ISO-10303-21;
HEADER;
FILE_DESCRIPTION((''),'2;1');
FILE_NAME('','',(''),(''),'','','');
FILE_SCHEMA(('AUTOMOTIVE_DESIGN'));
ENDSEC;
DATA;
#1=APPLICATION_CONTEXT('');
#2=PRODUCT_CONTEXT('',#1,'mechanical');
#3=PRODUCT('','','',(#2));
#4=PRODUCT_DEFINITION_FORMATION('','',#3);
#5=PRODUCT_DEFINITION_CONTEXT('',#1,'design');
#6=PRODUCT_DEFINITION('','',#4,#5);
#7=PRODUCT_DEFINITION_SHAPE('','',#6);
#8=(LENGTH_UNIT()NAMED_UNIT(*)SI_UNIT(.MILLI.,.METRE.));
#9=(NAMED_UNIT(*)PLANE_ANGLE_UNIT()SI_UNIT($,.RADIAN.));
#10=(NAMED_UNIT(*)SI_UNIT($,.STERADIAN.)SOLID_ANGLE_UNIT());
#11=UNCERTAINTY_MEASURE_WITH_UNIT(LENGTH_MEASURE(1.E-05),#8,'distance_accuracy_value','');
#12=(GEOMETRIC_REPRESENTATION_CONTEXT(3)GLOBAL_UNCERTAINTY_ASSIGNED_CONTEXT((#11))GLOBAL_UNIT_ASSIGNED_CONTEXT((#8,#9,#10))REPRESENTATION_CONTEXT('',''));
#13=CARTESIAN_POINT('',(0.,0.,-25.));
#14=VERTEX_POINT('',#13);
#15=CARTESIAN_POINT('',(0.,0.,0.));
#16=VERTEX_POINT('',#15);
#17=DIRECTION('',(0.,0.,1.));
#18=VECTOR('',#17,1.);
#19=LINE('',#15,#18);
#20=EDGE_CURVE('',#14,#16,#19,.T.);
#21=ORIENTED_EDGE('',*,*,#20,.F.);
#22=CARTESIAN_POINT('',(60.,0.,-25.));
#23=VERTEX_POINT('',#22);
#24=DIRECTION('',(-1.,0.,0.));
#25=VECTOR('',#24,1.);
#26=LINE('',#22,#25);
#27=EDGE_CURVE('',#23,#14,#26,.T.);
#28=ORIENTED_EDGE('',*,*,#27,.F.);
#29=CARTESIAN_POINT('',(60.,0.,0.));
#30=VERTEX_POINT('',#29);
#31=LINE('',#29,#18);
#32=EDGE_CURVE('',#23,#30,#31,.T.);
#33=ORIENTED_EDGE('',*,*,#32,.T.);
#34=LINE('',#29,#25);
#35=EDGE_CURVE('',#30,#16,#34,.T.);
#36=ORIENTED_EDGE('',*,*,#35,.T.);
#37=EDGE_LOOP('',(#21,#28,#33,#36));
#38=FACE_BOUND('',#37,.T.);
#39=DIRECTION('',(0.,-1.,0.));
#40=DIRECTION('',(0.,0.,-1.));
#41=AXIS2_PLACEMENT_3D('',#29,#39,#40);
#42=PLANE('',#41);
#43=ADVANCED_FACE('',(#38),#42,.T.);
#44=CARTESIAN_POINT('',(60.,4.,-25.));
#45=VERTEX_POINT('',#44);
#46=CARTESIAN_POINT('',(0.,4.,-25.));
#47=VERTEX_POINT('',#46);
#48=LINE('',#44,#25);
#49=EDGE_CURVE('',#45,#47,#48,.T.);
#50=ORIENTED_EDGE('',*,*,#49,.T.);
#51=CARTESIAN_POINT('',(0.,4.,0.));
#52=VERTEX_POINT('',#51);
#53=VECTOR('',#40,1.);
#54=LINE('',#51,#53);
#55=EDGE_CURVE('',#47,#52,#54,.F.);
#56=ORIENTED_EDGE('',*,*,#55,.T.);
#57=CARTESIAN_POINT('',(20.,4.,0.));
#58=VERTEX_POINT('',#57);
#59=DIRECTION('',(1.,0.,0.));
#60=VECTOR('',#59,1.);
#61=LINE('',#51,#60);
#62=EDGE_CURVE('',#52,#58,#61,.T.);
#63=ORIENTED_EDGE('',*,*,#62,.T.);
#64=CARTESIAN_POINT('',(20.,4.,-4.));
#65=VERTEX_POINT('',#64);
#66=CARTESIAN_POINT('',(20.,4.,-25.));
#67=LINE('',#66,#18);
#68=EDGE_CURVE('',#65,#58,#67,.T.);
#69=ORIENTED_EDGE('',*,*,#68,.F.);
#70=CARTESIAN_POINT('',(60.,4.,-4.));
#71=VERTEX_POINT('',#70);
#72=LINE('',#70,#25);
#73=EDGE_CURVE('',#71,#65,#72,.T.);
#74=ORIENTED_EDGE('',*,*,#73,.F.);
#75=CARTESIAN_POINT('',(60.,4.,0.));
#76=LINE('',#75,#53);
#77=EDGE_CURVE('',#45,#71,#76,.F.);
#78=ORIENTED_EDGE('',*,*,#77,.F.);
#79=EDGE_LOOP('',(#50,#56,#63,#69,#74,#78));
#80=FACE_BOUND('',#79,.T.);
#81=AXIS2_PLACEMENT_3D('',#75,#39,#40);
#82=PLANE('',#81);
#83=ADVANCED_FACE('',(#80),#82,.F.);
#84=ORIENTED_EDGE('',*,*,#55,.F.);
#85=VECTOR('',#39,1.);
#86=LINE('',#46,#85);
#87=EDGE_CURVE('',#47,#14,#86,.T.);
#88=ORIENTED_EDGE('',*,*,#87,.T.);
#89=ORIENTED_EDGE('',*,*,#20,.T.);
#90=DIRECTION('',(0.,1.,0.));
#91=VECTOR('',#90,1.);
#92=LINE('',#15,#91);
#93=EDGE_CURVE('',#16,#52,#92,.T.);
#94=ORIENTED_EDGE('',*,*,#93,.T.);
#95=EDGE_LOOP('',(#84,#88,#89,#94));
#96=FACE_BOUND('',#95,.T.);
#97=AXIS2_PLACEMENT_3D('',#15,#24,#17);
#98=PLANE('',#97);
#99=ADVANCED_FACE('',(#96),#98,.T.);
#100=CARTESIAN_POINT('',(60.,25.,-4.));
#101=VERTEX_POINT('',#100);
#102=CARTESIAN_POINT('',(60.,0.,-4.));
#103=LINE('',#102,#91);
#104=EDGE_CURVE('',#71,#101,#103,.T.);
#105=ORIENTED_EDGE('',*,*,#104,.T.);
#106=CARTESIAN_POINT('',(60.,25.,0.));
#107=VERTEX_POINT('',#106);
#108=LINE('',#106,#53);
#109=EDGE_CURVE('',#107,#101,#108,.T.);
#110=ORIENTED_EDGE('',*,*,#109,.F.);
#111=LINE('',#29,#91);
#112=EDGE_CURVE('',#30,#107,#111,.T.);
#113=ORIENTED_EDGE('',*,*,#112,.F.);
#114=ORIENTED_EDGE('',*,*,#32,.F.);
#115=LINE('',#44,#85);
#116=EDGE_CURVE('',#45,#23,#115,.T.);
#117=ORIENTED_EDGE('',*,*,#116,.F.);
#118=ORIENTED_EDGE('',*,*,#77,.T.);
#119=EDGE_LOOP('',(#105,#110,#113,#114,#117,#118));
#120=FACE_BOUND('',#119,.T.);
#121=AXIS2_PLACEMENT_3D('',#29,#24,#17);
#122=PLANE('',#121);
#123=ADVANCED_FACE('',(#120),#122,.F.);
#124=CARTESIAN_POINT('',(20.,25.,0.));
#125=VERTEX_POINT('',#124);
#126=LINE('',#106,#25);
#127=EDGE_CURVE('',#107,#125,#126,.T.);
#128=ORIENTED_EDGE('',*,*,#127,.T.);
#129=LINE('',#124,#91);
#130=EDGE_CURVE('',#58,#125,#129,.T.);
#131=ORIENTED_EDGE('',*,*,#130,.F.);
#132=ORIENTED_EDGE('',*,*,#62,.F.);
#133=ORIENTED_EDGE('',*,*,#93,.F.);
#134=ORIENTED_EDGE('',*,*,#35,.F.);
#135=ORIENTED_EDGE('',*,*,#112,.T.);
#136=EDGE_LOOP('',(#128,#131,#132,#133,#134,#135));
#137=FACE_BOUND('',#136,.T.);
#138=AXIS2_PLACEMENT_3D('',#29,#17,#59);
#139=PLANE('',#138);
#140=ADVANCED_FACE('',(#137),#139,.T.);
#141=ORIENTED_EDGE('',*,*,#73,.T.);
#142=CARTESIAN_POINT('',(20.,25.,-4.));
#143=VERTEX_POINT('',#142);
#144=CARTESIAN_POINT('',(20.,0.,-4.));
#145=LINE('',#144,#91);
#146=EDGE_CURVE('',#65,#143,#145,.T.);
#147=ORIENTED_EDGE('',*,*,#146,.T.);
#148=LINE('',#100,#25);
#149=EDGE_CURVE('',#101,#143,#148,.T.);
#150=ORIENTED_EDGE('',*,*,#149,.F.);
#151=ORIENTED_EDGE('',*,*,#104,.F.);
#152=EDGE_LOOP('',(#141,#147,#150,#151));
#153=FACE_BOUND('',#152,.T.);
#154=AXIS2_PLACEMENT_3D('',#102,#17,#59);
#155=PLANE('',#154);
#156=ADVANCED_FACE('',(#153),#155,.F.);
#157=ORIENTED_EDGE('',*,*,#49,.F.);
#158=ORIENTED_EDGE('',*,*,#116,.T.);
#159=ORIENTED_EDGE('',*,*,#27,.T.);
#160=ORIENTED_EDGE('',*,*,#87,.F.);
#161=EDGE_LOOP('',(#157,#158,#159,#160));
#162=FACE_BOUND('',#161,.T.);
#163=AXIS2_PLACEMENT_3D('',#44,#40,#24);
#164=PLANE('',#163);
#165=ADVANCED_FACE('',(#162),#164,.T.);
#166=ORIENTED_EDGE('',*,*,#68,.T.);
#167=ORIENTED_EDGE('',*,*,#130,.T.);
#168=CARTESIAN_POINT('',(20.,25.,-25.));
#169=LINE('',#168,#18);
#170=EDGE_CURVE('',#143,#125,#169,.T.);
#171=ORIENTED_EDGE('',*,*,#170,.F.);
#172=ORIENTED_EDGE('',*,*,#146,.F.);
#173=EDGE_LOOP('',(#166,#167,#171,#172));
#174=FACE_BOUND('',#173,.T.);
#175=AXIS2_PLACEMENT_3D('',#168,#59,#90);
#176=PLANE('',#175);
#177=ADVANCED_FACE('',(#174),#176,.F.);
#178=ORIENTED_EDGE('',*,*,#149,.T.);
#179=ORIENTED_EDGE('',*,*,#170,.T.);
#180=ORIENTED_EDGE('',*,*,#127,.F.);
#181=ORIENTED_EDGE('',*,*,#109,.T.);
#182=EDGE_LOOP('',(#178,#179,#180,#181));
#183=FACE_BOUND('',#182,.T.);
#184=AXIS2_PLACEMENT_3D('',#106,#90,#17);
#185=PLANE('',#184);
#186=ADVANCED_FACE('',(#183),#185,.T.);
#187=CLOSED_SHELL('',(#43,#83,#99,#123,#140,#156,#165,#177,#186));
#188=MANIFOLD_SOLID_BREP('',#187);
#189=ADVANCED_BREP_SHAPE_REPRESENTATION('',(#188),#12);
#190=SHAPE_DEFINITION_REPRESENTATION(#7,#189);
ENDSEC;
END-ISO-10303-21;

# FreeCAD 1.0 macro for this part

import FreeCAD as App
import Part
import Sketcher

V = App.Vector

doc = App.newDocument("Part")
params = doc.addObject("Spreadsheet::Sheet", "Params")
for row, (alias, value) in enumerate([
    ("sketch1_width", "25 mm"),
    ("sketch1_width2", "4 mm"),
    ("pad1_length", "60 mm"),
    ("sketch2_width", "20 mm"),
    ("sketch2_height", "21 mm"),
], start=1):
    params.set(f"A{row}", alias)
    params.set(f"B{row}", "=" + value)
    params.setAlias(f"B{row}", alias)

body = doc.addObject("PartDesign::Body", "Body")

# Sketch on YZ plane
sketch1 = doc.addObject("Sketcher::SketchObject", "Sketch")
body.addObject(sketch1)
sketch1.AttachmentSupport = (doc.YZ_Plane, [""])
sketch1.MapMode = "FlatFace"
sketch1.addGeometry([
    Part.LineSegment(V(25, 0, 0), V(0, 0, 0)),  # 0
    Part.LineSegment(V(0, 0, 0), V(0, -25, 0)),  # 1
    Part.LineSegment(V(0, -25, 0), V(4, -25, 0)),  # 2
    Part.LineSegment(V(4, -25, 0), V(4, -4, 0)),  # 3
    Part.LineSegment(V(4, -4, 0), V(25, -4, 0)),  # 4
    Part.LineSegment(V(25, -4, 0), V(25, 0, 0)),  # 5
], False)
sketch1.addConstraint([
    Sketcher.Constraint("Coincident", 0, 2, 1, 1),
    Sketcher.Constraint("Coincident", 1, 2, 2, 1),
    Sketcher.Constraint("Coincident", 2, 2, 3, 1),
    Sketcher.Constraint("Coincident", 3, 2, 4, 1),
    Sketcher.Constraint("Coincident", 4, 2, 5, 1),
    Sketcher.Constraint("Coincident", 5, 2, 0, 1),
    Sketcher.Constraint("Horizontal", 0),
    Sketcher.Constraint("Vertical", 1),
    Sketcher.Constraint("Horizontal", 2),
    Sketcher.Constraint("Vertical", 3),
    Sketcher.Constraint("Horizontal", 4),
    Sketcher.Constraint("Vertical", 5),
    Sketcher.Constraint("Coincident", 0, 2, -1, 1),
    Sketcher.Constraint("Equal", 0, 1),
    Sketcher.Constraint("Equal", 4, 3),
    Sketcher.Constraint("DistanceX", 0, 2, 0, 1, 25.0),
    Sketcher.Constraint("DistanceX", 2, 1, 2, 2, 4.0),
])
sketch1.setExpression("Constraints[15]", "Params.sketch1_width")
sketch1.setExpression("Constraints[16]", "Params.sketch1_width2")
pad1 = doc.addObject("PartDesign::Pad", "Pad")
body.addObject(pad1)
pad1.Profile = sketch1
pad1.setExpression("Length", "Params.pad1_length")

# Sketch on XY plane
sketch2 = doc.addObject("Sketcher::SketchObject", "Sketch001")
body.addObject(sketch2)
sketch2.AttachmentSupport = (doc.XY_Plane, [""])
sketch2.MapMode = "FlatFace"
sketch2.addGeometry([
    Part.LineSegment(V(0, 25, 0), V(0, 4, 0)),
    Part.LineSegment(V(0, 4, 0), V(20, 4, 0)),
    Part.LineSegment(V(20, 4, 0), V(20, 25, 0)),
    Part.LineSegment(V(20, 25, 0), V(0, 25, 0)),
], False)
sketch2.addConstraint([
    Sketcher.Constraint("Coincident", 0, 2, 1, 1),
    Sketcher.Constraint("Coincident", 1, 2, 2, 1),
    Sketcher.Constraint("Coincident", 2, 2, 3, 1),
    Sketcher.Constraint("Coincident", 3, 2, 0, 1),
    Sketcher.Constraint("Vertical", 0),
    Sketcher.Constraint("Horizontal", 1),
    Sketcher.Constraint("Vertical", 2),
    Sketcher.Constraint("Horizontal", 3),
    Sketcher.Constraint("PointOnObject", 0, 2, -2),
    Sketcher.Constraint("DistanceX", 1, 1, 1, 2, 20.0),
    Sketcher.Constraint("DistanceY", 0, 2, 0, 1, 21.0),
    Sketcher.Constraint("DistanceY", -1, 1, 0, 2, 4.0),
])
sketch2.setExpression("Constraints[9]", "Params.sketch2_width")
sketch2.setExpression("Constraints[10]", "Params.sketch2_height")
pocket1 = doc.addObject("PartDesign::Pocket", "Pocket")
body.addObject(pocket1)
pocket1.Profile = sketch2
pocket1.Type = "ThroughAll"

doc.recompute()
